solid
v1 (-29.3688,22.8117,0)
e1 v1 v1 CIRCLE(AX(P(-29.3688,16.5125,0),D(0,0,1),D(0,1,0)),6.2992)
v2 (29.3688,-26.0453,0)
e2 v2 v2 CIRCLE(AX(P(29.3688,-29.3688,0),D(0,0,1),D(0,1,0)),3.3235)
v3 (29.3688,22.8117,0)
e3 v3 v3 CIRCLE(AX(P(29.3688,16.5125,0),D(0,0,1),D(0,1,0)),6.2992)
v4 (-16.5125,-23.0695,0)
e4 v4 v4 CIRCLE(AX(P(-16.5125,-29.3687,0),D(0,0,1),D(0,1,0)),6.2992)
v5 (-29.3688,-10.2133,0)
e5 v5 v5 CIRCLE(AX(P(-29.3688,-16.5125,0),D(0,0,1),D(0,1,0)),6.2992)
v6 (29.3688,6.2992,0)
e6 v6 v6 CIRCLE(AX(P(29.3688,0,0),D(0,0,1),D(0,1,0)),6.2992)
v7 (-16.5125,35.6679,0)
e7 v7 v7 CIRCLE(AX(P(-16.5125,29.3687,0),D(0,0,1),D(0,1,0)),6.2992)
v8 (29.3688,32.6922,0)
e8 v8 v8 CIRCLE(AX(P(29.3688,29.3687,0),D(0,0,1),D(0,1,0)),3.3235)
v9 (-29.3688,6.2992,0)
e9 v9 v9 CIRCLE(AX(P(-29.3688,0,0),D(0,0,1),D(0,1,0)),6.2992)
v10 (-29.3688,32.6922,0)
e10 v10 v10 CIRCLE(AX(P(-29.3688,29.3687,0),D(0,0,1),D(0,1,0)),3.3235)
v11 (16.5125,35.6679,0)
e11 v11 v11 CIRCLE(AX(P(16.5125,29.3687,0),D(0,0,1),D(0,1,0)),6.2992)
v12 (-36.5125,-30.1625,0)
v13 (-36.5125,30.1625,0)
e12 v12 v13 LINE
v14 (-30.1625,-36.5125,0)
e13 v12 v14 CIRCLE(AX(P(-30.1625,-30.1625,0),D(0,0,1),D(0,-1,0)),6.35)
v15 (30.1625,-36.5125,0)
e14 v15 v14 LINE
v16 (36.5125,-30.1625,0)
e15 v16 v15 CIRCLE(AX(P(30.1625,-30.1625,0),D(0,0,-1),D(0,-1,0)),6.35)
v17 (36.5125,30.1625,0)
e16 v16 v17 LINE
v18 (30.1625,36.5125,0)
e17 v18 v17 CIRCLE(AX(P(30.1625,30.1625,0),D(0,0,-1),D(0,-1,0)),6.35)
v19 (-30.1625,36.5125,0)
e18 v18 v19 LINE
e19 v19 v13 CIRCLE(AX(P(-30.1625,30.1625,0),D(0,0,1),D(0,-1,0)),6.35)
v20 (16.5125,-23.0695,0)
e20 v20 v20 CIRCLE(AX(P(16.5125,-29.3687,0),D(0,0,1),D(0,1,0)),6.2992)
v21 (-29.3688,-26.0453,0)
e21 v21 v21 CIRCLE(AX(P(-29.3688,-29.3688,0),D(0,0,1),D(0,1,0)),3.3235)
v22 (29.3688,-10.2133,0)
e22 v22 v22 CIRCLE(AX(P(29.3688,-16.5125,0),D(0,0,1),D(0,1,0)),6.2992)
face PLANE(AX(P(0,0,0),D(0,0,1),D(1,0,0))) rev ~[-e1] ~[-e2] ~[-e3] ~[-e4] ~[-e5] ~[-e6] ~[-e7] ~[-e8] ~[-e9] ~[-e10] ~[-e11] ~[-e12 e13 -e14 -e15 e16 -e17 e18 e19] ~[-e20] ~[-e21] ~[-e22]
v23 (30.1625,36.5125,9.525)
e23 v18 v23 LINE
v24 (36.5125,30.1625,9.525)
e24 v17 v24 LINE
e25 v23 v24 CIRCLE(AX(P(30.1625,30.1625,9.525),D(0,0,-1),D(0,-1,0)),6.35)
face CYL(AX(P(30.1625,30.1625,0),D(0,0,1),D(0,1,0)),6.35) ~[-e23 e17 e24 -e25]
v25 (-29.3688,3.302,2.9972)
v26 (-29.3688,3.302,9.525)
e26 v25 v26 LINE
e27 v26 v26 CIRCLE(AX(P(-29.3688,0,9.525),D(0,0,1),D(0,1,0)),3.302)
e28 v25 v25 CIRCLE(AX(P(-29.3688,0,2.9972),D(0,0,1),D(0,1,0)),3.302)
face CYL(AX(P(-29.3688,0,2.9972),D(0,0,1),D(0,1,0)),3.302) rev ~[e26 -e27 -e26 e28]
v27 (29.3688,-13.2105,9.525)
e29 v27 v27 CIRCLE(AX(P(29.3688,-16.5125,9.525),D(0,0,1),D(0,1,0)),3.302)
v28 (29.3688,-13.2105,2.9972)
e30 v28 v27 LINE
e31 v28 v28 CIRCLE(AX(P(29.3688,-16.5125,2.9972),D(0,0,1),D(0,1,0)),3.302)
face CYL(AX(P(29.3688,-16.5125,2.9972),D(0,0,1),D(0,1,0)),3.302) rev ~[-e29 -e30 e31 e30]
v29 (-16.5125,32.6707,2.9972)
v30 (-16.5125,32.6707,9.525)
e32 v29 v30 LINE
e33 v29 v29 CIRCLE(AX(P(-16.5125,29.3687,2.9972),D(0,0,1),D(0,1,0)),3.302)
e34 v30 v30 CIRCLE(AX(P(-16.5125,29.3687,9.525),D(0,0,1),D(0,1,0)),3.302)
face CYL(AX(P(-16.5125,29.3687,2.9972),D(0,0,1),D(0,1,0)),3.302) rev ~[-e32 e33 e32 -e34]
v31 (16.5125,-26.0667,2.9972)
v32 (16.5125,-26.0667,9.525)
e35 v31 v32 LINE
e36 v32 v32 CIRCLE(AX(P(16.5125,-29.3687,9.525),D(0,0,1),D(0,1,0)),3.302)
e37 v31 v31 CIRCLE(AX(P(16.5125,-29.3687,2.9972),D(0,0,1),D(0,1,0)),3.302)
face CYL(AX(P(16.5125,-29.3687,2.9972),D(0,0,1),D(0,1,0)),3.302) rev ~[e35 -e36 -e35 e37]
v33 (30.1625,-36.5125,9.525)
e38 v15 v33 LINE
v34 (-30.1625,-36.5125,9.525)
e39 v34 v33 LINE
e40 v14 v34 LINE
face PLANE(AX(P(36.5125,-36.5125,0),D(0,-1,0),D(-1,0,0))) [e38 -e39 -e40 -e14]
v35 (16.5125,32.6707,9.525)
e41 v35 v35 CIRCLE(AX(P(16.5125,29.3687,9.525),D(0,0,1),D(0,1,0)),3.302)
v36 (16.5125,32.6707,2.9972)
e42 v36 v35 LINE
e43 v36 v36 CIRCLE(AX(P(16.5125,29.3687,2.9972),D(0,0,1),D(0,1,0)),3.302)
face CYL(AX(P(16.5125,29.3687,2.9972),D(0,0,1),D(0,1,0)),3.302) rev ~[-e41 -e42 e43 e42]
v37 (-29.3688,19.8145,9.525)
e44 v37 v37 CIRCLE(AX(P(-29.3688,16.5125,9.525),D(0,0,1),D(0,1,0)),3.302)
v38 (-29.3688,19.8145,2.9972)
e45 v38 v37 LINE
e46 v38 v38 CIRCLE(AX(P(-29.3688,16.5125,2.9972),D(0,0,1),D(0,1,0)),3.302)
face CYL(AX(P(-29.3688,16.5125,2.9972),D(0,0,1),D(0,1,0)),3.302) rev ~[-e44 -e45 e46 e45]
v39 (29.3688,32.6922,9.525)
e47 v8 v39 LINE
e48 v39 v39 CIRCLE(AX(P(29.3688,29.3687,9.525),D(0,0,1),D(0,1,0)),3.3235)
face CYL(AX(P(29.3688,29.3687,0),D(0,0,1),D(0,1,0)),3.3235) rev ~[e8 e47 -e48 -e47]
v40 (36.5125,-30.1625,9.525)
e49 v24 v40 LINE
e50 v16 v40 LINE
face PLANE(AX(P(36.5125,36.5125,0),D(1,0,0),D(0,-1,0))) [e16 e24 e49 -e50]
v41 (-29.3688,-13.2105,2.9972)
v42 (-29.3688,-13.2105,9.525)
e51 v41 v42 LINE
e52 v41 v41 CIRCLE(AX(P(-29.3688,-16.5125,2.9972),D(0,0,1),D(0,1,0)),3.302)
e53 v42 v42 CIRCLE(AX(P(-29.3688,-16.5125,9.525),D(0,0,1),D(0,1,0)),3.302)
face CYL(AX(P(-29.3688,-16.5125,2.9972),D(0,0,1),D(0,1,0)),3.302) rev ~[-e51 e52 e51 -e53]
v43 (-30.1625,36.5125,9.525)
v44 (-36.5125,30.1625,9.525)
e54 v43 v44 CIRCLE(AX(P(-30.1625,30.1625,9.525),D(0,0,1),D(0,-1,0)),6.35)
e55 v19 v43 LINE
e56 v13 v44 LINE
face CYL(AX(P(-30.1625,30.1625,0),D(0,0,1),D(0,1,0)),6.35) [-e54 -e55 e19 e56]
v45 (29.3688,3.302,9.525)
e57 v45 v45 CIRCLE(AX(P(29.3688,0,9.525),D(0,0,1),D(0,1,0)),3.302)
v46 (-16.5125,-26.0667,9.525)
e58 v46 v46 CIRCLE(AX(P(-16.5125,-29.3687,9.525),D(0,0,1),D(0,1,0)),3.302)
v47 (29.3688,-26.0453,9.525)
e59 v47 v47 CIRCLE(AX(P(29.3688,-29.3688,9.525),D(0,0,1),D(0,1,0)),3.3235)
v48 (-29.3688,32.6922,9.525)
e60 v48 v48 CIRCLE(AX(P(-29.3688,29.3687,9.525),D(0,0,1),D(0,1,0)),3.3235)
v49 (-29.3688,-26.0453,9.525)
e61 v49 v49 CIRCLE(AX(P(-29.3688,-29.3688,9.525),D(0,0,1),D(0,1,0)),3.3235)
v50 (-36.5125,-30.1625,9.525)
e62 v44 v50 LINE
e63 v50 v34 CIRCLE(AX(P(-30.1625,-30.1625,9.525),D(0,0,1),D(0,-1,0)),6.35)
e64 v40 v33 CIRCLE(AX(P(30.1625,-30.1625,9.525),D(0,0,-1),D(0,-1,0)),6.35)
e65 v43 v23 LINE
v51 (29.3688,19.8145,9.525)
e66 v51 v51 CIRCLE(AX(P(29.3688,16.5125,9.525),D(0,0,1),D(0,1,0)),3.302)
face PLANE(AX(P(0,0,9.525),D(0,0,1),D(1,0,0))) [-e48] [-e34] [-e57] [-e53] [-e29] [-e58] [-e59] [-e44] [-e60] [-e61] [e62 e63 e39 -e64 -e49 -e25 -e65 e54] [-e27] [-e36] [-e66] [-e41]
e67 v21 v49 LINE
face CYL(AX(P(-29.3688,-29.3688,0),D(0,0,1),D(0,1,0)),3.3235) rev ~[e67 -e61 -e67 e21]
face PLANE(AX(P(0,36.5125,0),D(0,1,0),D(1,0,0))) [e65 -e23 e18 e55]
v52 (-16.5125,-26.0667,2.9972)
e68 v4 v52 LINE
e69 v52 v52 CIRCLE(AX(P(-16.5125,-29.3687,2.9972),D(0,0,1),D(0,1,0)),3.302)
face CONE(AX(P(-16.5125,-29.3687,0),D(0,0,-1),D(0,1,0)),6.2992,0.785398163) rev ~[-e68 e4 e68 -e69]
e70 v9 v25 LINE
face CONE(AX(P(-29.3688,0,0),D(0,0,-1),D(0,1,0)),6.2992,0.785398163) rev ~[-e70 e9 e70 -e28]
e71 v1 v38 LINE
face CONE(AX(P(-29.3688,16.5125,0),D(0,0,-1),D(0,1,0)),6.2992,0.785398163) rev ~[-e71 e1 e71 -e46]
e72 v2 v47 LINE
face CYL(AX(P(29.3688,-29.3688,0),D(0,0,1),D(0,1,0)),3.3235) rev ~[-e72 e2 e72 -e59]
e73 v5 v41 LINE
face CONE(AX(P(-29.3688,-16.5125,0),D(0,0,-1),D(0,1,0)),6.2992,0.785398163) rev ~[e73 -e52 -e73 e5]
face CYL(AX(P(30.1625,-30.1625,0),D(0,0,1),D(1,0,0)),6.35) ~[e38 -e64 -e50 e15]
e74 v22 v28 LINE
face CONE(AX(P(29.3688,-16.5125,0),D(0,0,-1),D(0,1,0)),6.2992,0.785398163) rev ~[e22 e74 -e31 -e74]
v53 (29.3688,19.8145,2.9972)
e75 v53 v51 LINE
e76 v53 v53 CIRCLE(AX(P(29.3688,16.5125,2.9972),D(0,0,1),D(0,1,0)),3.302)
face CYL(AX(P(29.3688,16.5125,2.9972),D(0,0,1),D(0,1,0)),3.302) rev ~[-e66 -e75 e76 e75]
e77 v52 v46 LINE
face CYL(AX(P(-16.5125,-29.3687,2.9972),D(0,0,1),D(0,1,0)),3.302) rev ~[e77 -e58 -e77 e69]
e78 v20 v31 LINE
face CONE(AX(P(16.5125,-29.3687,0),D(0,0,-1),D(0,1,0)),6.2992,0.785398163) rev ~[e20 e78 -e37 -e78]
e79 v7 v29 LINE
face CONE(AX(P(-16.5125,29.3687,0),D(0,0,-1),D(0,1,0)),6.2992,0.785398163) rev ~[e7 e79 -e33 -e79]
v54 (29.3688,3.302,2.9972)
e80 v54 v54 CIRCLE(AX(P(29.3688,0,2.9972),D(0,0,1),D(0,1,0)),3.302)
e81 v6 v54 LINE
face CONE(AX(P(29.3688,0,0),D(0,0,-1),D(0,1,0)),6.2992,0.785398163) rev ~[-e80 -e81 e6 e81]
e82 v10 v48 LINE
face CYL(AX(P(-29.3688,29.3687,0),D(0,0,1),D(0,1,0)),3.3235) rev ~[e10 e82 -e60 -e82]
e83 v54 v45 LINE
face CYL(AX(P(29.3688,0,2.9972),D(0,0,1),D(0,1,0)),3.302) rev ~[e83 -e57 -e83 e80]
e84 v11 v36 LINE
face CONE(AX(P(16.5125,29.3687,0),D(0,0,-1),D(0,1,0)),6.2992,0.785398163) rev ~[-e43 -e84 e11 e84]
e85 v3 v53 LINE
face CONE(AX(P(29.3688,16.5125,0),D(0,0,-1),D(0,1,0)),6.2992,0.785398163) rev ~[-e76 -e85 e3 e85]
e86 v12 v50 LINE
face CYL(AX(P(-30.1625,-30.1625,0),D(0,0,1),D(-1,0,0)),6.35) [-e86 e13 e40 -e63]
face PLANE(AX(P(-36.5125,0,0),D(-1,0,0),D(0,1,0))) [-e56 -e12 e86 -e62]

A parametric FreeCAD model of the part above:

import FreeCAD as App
import Part
import Sketcher
Q = App.Units.Quantity


def edges_at(feature, points):
    """Names of the edges that pass closest to the given points."""
    edges = feature.Shape.Edges
    near = lambda p: min(range(len(edges)), key=lambda i: edges[i].distToShape(Part.Vertex(*p))[0])
    return sorted({f"Edge{near(p) + 1}" for p in points})

doc = App.newDocument("Part")
body = doc.addObject("PartDesign::Body", "Body")

# Sketch on XY plane
sketch1 = body.newObject("Sketcher::SketchObject", "Sketch")
sketch1.AttachmentSupport = (doc.getObject("XY_Plane"), [""])
sketch1.MapMode = "FlatFace"
sketch1.addGeometry(Part.LineSegment(App.Vector(36.5125, 36.5125, 0), App.Vector(-36.5125, 36.5125, 0)), False)
sketch1.addGeometry(Part.LineSegment(App.Vector(-36.5125, 36.5125, 0), App.Vector(-36.5125, -36.5125, 0)), False)
sketch1.addGeometry(Part.LineSegment(App.Vector(-36.5125, -36.5125, 0), App.Vector(36.5125, -36.5125, 0)), False)
sketch1.addGeometry(Part.LineSegment(App.Vector(36.5125, -36.5125, 0), App.Vector(36.5125, 36.5125, 0)), False)
sketch1.addConstraint(Sketcher.Constraint("Coincident", 0, 2, 1, 1))
sketch1.addConstraint(Sketcher.Constraint("Coincident", 1, 2, 2, 1))
sketch1.addConstraint(Sketcher.Constraint("Coincident", 2, 2, 3, 1))
sketch1.addConstraint(Sketcher.Constraint("Coincident", 3, 2, 0, 1))
sketch1.addConstraint(Sketcher.Constraint("Horizontal", 0))
sketch1.addConstraint(Sketcher.Constraint("Vertical", 1))
sketch1.addConstraint(Sketcher.Constraint("Horizontal", 2))
sketch1.addConstraint(Sketcher.Constraint("Vertical", 3))
sketch1.addConstraint(Sketcher.Constraint("Symmetric", 0, 2, 2, 2, -1, 1))
sketch1.addConstraint(Sketcher.Constraint("Equal", 2, 1))
sketch1.addConstraint(Sketcher.Constraint("DistanceX", 0, 2, 0, 1, Q("2.875 in")))
pad1 = body.newObject("PartDesign::Pad", "Pad")
pad1.Profile = sketch1
pad1.Length = Q("0.375 in")

# Sketch on XY plane
sketch2 = body.newObject("Sketcher::SketchObject", "Sketch001")
sketch2.AttachmentSupport = (doc.getObject("XY_Plane"), [""])
sketch2.MapMode = "FlatFace"
sketch2.addGeometry(Part.Circle(App.Vector(-29.3688, 29.3687, 0), App.Vector(0, 0, 1), 3.3235), False)
sketch2.addGeometry(Part.Circle(App.Vector(29.3688, 29.3687, 0), App.Vector(0, 0, 1), 3.3235), False)
sketch2.addGeometry(Part.Circle(App.Vector(29.3688, -29.3688, 0), App.Vector(0, 0, 1), 3.3235), False)
sketch2.addGeometry(Part.Circle(App.Vector(-29.3688, -29.3688, 0), App.Vector(0, 0, 1), 3.3235), False)
sketch2.addConstraint(Sketcher.Constraint("Equal", 0, 1))
sketch2.addConstraint(Sketcher.Constraint("Equal", 1, 2))
sketch2.addConstraint(Sketcher.Constraint("Equal", 2, 3))
sketch2.addConstraint(Sketcher.Constraint("Symmetric", 0, 3, 2, 3, -1, 1))
sketch2.addConstraint(Sketcher.Constraint("Symmetric", 1, 3, 3, 3, -1, 1))
sketch2.addConstraint(Sketcher.Constraint("Symmetric", 0, 3, 1, 3, -2))
sketch2.addConstraint(Sketcher.Constraint("Diameter", 0, Q("0.2617 in")))
sketch2.addConstraint(Sketcher.Constraint("DistanceX", 0, 3, -1, 1, Q("1.156252 in")))
sketch2.addConstraint(Sketcher.Constraint("DistanceY", -1, 1, 0, 3, Q("1.156248 in")))
doc.recompute()
hole = body.newObject("PartDesign::Hole", "Hole")
hole.Profile = sketch2
hole.ThreadType = "None"
hole.Diameter = Q("0.2616929 in")
hole.DepthType = "ThroughAll"
hole.Reversed = True

# Sketch on XY plane
sketch3 = body.newObject("Sketcher::SketchObject", "Sketch002")
sketch3.AttachmentSupport = (doc.getObject("XY_Plane"), [""])
sketch3.MapMode = "FlatFace"
sketch3.addGeometry(Part.Circle(App.Vector(-16.5125, 29.3687, 0), App.Vector(0, 0, 1), 3.302), False)
sketch3.addGeometry(Part.Circle(App.Vector(16.5125, -29.3687, 0), App.Vector(0, 0, 1), 3.302), False)
sketch3.addGeometry(Part.Circle(App.Vector(29.3688, 0, 0), App.Vector(0, 0, 1), 3.302), False)
sketch3.addGeometry(Part.Circle(App.Vector(-29.3688, 0, 0), App.Vector(0, 0, 1), 3.302), False)
sketch3.addGeometry(Part.Circle(App.Vector(16.5125, 29.3687, 0), App.Vector(0, 0, 1), 3.302), False)
sketch3.addGeometry(Part.Circle(App.Vector(-16.5125, -29.3687, 0), App.Vector(0, 0, 1), 3.302), False)
sketch3.addGeometry(Part.Circle(App.Vector(29.3688, 16.5125, 0), App.Vector(0, 0, 1), 3.302), False)
sketch3.addGeometry(Part.Circle(App.Vector(29.3688, -16.5125, 0), App.Vector(0, 0, 1), 3.302), False)
sketch3.addGeometry(Part.Circle(App.Vector(-29.3688, -16.5125, 0), App.Vector(0, 0, 1), 3.302), False)
sketch3.addGeometry(Part.Circle(App.Vector(-29.3688, 16.5125, 0), App.Vector(0, 0, 1), 3.302), False)
sketch3.addConstraint(Sketcher.Constraint("Equal", 0, 1))
sketch3.addConstraint(Sketcher.Constraint("Equal", 1, 2))
sketch3.addConstraint(Sketcher.Constraint("Equal", 2, 3))
sketch3.addConstraint(Sketcher.Constraint("Equal", 3, 4))
sketch3.addConstraint(Sketcher.Constraint("Equal", 4, 5))
sketch3.addConstraint(Sketcher.Constraint("Equal", 5, 6))
sketch3.addConstraint(Sketcher.Constraint("Equal", 6, 7))
sketch3.addConstraint(Sketcher.Constraint("Equal", 7, 8))
sketch3.addConstraint(Sketcher.Constraint("Equal", 8, 9))
sketch3.addConstraint(Sketcher.Constraint("Symmetric", 0, 3, 1, 3, -1, 1))
sketch3.addConstraint(Sketcher.Constraint("Symmetric", 2, 3, 3, 3, -1, 1))
sketch3.addConstraint(Sketcher.Constraint("Symmetric", 4, 3, 5, 3, -1, 1))
sketch3.addConstraint(Sketcher.Constraint("Symmetric", 6, 3, 8, 3, -1, 1))
sketch3.addConstraint(Sketcher.Constraint("Symmetric", 7, 3, 9, 3, -1, 1))
sketch3.addConstraint(Sketcher.Constraint("Symmetric", 0, 3, 4, 3, -2))
sketch3.addConstraint(Sketcher.Constraint("Symmetric", 7, 3, 8, 3, -2))
sketch3.addConstraint(Sketcher.Constraint("PointOnObject", 2, 3, -1))
sketch3.addConstraint(Sketcher.Constraint("Vertical", 2, 3, 6, 3))
sketch3.addConstraint(Sketcher.Constraint("Diameter", 0, Q("0.26 in")))
sketch3.addConstraint(Sketcher.Constraint("DistanceY", -1, 1, 0, 3, Q("1.156248 in")))
sketch3.addConstraint(Sketcher.Constraint("DistanceX", -1, 1, 2, 3, Q("1.156252 in")))
sketch3.addConstraint(Sketcher.Constraint("DistanceX", 0, 3, -1, 1, Q("0.6501 in")))
sketch3.addConstraint(Sketcher.Constraint("DistanceY", -1, 1, 6, 3, Q("0.6501 in")))
doc.recompute()
hole2 = body.newObject("PartDesign::Hole", "Hole001")
hole2.Profile = sketch3
hole2.ThreadType = "None"
hole2.Diameter = Q("0.26 in")
hole2.DepthType = "ThroughAll"
hole2.HoleCutType = "Countersink"
hole2.HoleCutDiameter = Q("0.496 in")
hole2.HoleCutCountersinkAngle = 90
hole2.Reversed = True
doc.recompute()

fillet = body.newObject("PartDesign::Fillet", "Fillet")
fillet.Base = (hole2, edges_at(hole2, [
    (-36.513, -36.513, 4.763),
    (-36.513, 36.513, 4.763),
    (36.513, -36.513, 4.763),
    (36.513, 36.513, 4.763),
]))
fillet.Radius = Q("0.25 in")

doc.recompute()
